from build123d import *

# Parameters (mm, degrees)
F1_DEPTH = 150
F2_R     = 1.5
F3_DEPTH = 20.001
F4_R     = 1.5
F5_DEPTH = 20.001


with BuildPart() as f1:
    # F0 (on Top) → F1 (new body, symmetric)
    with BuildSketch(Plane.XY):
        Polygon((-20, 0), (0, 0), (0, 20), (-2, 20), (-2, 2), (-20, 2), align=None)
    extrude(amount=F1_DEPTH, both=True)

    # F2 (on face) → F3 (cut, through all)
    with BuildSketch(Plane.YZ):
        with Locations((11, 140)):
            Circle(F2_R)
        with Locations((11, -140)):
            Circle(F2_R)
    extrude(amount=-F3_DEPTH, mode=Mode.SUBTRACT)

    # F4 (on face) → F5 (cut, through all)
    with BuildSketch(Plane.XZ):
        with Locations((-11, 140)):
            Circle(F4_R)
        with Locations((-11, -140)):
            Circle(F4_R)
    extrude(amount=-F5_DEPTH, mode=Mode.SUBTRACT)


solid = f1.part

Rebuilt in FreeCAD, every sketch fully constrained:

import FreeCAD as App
import Part
import Sketcher
Q = App.Units.Quantity


def add_polygon(sketch, points):
    """Adds a closed chain of lines whose ends are joined by coincident constraints."""
    first, n = sketch.GeometryCount, len(points)
    for a, b in zip(points, points[1:] + points[:1]):
        sketch.addGeometry(Part.LineSegment(App.Vector(*a, 0), App.Vector(*b, 0)), False)
    for i in range(n):
        sketch.addConstraint(Sketcher.Constraint("Coincident", first + i, 2, first + (i + 1) % n, 1))

doc = App.newDocument("Part")
body = doc.addObject("PartDesign::Body", "Body")

sketch1 = body.newObject("Sketcher::SketchObject", "Sketch")
sketch1.AttachmentSupport = (doc.getObject("XY_Plane"), [""])
sketch1.MapMode = "FlatFace"
add_polygon(sketch1, [(-20, 0), (0, 0), (0, 20), (-2, 20), (-2, 2), (-20, 2)])
sketch1.addConstraint(Sketcher.Constraint("Horizontal", 0))
sketch1.addConstraint(Sketcher.Constraint("Vertical", 1))
sketch1.addConstraint(Sketcher.Constraint("Horizontal", 2))
sketch1.addConstraint(Sketcher.Constraint("Vertical", 3))
sketch1.addConstraint(Sketcher.Constraint("Horizontal", 4))
sketch1.addConstraint(Sketcher.Constraint("Vertical", 5))
sketch1.addConstraint(Sketcher.Constraint("Coincident", 0, 2, -1, 1))
sketch1.addConstraint(Sketcher.Constraint("Equal", 0, 1))
sketch1.addConstraint(Sketcher.Constraint("Equal", 4, 3))
sketch1.addConstraint(Sketcher.Constraint("DistanceX", 0, 1, 0, 2, Q("20 mm")))
sketch1.addConstraint(Sketcher.Constraint("DistanceX", 2, 2, 2, 1, Q("2 mm")))
pad1 = body.newObject("PartDesign::Pad", "Pad")
pad1.Profile = sketch1
pad1.Length = 300
pad1.Midplane = True

sketch2 = body.newObject("Sketcher::SketchObject", "Sketch001")
sketch2.AttachmentSupport = (doc.getObject("YZ_Plane"), [""])
sketch2.MapMode = "FlatFace"
sketch2.addGeometry(Part.Circle(App.Vector(11, 140, 0), App.Vector(0, 0, 1), 1.5), False)
sketch2.addGeometry(Part.Circle(App.Vector(11, -140, 0), App.Vector(0, 0, 1), 1.5), False)
sketch2.addConstraint(Sketcher.Constraint("Equal", 0, 1))
sketch2.addConstraint(Sketcher.Constraint("Symmetric", 0, 3, 1, 3, -1))
sketch2.addConstraint(Sketcher.Constraint("Diameter", 0, Q("3 mm")))
sketch2.addConstraint(Sketcher.Constraint("DistanceX", -1, 1, 0, 3, Q("11 mm")))
sketch2.addConstraint(Sketcher.Constraint("DistanceY", -1, 1, 0, 3, Q("140 mm")))
pocket1 = body.newObject("PartDesign::Pocket", "Pocket")
pocket1.Profile = sketch2
pocket1.Type = "ThroughAll"

sketch3 = body.newObject("Sketcher::SketchObject", "Sketch002")
sketch3.AttachmentSupport = (doc.getObject("XZ_Plane"), [""])
sketch3.MapMode = "FlatFace"
sketch3.addGeometry(Part.Circle(App.Vector(-11, 140, 0), App.Vector(0, 0, 1), 1.5), False)
sketch3.addGeometry(Part.Circle(App.Vector(-11, -140, 0), App.Vector(0, 0, 1), 1.5), False)
sketch3.addConstraint(Sketcher.Constraint("Equal", 0, 1))
sketch3.addConstraint(Sketcher.Constraint("Symmetric", 0, 3, 1, 3, -1))
sketch3.addConstraint(Sketcher.Constraint("Diameter", 0, Q("3 mm")))
sketch3.addConstraint(Sketcher.Constraint("DistanceX", 0, 3, -1, 1, Q("11 mm")))
sketch3.addConstraint(Sketcher.Constraint("DistanceY", -1, 1, 0, 3, Q("140 mm")))
pocket2 = body.newObject("PartDesign::Pocket", "Pocket001")
pocket2.Profile = sketch3
pocket2.Type = "ThroughAll"

doc.recompute()
